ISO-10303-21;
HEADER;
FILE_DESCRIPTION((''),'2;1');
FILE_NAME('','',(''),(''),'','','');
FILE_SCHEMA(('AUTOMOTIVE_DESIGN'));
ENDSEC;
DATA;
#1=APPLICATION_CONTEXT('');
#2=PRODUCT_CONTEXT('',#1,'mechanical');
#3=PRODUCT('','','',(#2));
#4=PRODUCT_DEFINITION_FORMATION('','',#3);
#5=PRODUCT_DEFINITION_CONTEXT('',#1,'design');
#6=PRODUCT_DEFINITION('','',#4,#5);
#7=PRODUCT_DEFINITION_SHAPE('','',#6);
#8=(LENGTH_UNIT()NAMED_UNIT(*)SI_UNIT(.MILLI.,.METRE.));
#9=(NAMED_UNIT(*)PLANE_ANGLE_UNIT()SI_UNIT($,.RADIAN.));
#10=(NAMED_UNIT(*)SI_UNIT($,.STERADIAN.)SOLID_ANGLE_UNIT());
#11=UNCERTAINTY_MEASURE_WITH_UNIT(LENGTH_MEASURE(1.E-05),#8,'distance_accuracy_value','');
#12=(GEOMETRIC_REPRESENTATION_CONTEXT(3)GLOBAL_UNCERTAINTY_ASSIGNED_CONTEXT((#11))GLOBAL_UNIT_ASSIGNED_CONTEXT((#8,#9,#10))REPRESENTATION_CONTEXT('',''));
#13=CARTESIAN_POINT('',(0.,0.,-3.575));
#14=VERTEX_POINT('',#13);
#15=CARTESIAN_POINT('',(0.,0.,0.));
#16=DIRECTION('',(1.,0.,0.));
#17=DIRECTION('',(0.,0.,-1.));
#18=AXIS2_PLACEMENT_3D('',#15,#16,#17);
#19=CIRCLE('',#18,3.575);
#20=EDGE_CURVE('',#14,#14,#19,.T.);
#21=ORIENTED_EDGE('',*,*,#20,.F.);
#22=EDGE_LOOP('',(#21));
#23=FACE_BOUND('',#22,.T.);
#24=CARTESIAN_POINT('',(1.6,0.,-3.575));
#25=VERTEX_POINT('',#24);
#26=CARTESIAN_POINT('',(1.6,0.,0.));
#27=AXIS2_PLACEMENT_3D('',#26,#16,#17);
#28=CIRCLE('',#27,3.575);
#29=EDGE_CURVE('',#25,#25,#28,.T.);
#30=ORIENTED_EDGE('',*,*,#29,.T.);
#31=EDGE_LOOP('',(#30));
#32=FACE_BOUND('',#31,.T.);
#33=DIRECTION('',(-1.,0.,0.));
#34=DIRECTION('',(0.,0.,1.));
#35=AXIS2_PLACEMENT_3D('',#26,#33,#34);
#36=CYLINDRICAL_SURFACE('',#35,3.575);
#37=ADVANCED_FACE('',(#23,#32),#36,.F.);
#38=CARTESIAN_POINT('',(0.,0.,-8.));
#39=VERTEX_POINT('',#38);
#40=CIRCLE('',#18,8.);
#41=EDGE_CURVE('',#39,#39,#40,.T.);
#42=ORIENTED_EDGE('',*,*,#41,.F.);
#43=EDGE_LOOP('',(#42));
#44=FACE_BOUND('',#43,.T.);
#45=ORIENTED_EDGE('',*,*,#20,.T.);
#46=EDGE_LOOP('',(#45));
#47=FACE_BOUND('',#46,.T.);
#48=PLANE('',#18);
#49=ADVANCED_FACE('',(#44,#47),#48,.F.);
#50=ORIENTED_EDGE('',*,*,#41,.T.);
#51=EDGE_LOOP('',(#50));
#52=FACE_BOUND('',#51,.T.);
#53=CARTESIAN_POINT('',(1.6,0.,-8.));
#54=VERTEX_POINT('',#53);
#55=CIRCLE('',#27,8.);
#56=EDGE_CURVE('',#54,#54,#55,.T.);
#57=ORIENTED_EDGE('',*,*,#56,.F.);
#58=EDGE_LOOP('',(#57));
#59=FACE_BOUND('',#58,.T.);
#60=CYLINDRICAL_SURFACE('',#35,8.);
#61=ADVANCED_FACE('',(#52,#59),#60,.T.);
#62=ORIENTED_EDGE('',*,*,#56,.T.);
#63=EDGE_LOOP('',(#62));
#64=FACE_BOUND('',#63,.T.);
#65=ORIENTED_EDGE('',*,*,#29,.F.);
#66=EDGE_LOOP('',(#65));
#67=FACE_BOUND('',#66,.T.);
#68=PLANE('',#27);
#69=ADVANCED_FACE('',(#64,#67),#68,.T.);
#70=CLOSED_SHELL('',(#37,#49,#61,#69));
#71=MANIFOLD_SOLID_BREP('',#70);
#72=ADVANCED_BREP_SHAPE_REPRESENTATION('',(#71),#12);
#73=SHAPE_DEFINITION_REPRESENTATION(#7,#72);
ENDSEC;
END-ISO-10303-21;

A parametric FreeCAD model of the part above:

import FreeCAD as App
import Part
import Sketcher

doc = App.newDocument("Part")
body = doc.addObject("PartDesign::Body", "Body")

sketch1 = body.newObject("Sketcher::SketchObject", "Sketch")
sketch1.AttachmentSupport = (doc.getObject("YZ_Plane"), [""])
sketch1.MapMode = "FlatFace"
sketch1.addGeometry([
    Part.Circle(App.Vector(0, 0, 0), App.Vector(0, 0, 1), 8),
    Part.Circle(App.Vector(0, 0, 0), App.Vector(0, 0, 1), 3.6),
], False)
sketch1.addConstraint([
    Sketcher.Constraint("Coincident", 0, 3, -1, 1),
    Sketcher.Constraint("Coincident", 1, 3, -1, 1),
    Sketcher.Constraint("Diameter", 0, 16.0),
    Sketcher.Constraint("Diameter", 1, 7.15),
])
pad1 = body.newObject("PartDesign::Pad", "Pad")
pad1.Profile = sketch1
pad1.Length = 1.6

doc.recompute()
